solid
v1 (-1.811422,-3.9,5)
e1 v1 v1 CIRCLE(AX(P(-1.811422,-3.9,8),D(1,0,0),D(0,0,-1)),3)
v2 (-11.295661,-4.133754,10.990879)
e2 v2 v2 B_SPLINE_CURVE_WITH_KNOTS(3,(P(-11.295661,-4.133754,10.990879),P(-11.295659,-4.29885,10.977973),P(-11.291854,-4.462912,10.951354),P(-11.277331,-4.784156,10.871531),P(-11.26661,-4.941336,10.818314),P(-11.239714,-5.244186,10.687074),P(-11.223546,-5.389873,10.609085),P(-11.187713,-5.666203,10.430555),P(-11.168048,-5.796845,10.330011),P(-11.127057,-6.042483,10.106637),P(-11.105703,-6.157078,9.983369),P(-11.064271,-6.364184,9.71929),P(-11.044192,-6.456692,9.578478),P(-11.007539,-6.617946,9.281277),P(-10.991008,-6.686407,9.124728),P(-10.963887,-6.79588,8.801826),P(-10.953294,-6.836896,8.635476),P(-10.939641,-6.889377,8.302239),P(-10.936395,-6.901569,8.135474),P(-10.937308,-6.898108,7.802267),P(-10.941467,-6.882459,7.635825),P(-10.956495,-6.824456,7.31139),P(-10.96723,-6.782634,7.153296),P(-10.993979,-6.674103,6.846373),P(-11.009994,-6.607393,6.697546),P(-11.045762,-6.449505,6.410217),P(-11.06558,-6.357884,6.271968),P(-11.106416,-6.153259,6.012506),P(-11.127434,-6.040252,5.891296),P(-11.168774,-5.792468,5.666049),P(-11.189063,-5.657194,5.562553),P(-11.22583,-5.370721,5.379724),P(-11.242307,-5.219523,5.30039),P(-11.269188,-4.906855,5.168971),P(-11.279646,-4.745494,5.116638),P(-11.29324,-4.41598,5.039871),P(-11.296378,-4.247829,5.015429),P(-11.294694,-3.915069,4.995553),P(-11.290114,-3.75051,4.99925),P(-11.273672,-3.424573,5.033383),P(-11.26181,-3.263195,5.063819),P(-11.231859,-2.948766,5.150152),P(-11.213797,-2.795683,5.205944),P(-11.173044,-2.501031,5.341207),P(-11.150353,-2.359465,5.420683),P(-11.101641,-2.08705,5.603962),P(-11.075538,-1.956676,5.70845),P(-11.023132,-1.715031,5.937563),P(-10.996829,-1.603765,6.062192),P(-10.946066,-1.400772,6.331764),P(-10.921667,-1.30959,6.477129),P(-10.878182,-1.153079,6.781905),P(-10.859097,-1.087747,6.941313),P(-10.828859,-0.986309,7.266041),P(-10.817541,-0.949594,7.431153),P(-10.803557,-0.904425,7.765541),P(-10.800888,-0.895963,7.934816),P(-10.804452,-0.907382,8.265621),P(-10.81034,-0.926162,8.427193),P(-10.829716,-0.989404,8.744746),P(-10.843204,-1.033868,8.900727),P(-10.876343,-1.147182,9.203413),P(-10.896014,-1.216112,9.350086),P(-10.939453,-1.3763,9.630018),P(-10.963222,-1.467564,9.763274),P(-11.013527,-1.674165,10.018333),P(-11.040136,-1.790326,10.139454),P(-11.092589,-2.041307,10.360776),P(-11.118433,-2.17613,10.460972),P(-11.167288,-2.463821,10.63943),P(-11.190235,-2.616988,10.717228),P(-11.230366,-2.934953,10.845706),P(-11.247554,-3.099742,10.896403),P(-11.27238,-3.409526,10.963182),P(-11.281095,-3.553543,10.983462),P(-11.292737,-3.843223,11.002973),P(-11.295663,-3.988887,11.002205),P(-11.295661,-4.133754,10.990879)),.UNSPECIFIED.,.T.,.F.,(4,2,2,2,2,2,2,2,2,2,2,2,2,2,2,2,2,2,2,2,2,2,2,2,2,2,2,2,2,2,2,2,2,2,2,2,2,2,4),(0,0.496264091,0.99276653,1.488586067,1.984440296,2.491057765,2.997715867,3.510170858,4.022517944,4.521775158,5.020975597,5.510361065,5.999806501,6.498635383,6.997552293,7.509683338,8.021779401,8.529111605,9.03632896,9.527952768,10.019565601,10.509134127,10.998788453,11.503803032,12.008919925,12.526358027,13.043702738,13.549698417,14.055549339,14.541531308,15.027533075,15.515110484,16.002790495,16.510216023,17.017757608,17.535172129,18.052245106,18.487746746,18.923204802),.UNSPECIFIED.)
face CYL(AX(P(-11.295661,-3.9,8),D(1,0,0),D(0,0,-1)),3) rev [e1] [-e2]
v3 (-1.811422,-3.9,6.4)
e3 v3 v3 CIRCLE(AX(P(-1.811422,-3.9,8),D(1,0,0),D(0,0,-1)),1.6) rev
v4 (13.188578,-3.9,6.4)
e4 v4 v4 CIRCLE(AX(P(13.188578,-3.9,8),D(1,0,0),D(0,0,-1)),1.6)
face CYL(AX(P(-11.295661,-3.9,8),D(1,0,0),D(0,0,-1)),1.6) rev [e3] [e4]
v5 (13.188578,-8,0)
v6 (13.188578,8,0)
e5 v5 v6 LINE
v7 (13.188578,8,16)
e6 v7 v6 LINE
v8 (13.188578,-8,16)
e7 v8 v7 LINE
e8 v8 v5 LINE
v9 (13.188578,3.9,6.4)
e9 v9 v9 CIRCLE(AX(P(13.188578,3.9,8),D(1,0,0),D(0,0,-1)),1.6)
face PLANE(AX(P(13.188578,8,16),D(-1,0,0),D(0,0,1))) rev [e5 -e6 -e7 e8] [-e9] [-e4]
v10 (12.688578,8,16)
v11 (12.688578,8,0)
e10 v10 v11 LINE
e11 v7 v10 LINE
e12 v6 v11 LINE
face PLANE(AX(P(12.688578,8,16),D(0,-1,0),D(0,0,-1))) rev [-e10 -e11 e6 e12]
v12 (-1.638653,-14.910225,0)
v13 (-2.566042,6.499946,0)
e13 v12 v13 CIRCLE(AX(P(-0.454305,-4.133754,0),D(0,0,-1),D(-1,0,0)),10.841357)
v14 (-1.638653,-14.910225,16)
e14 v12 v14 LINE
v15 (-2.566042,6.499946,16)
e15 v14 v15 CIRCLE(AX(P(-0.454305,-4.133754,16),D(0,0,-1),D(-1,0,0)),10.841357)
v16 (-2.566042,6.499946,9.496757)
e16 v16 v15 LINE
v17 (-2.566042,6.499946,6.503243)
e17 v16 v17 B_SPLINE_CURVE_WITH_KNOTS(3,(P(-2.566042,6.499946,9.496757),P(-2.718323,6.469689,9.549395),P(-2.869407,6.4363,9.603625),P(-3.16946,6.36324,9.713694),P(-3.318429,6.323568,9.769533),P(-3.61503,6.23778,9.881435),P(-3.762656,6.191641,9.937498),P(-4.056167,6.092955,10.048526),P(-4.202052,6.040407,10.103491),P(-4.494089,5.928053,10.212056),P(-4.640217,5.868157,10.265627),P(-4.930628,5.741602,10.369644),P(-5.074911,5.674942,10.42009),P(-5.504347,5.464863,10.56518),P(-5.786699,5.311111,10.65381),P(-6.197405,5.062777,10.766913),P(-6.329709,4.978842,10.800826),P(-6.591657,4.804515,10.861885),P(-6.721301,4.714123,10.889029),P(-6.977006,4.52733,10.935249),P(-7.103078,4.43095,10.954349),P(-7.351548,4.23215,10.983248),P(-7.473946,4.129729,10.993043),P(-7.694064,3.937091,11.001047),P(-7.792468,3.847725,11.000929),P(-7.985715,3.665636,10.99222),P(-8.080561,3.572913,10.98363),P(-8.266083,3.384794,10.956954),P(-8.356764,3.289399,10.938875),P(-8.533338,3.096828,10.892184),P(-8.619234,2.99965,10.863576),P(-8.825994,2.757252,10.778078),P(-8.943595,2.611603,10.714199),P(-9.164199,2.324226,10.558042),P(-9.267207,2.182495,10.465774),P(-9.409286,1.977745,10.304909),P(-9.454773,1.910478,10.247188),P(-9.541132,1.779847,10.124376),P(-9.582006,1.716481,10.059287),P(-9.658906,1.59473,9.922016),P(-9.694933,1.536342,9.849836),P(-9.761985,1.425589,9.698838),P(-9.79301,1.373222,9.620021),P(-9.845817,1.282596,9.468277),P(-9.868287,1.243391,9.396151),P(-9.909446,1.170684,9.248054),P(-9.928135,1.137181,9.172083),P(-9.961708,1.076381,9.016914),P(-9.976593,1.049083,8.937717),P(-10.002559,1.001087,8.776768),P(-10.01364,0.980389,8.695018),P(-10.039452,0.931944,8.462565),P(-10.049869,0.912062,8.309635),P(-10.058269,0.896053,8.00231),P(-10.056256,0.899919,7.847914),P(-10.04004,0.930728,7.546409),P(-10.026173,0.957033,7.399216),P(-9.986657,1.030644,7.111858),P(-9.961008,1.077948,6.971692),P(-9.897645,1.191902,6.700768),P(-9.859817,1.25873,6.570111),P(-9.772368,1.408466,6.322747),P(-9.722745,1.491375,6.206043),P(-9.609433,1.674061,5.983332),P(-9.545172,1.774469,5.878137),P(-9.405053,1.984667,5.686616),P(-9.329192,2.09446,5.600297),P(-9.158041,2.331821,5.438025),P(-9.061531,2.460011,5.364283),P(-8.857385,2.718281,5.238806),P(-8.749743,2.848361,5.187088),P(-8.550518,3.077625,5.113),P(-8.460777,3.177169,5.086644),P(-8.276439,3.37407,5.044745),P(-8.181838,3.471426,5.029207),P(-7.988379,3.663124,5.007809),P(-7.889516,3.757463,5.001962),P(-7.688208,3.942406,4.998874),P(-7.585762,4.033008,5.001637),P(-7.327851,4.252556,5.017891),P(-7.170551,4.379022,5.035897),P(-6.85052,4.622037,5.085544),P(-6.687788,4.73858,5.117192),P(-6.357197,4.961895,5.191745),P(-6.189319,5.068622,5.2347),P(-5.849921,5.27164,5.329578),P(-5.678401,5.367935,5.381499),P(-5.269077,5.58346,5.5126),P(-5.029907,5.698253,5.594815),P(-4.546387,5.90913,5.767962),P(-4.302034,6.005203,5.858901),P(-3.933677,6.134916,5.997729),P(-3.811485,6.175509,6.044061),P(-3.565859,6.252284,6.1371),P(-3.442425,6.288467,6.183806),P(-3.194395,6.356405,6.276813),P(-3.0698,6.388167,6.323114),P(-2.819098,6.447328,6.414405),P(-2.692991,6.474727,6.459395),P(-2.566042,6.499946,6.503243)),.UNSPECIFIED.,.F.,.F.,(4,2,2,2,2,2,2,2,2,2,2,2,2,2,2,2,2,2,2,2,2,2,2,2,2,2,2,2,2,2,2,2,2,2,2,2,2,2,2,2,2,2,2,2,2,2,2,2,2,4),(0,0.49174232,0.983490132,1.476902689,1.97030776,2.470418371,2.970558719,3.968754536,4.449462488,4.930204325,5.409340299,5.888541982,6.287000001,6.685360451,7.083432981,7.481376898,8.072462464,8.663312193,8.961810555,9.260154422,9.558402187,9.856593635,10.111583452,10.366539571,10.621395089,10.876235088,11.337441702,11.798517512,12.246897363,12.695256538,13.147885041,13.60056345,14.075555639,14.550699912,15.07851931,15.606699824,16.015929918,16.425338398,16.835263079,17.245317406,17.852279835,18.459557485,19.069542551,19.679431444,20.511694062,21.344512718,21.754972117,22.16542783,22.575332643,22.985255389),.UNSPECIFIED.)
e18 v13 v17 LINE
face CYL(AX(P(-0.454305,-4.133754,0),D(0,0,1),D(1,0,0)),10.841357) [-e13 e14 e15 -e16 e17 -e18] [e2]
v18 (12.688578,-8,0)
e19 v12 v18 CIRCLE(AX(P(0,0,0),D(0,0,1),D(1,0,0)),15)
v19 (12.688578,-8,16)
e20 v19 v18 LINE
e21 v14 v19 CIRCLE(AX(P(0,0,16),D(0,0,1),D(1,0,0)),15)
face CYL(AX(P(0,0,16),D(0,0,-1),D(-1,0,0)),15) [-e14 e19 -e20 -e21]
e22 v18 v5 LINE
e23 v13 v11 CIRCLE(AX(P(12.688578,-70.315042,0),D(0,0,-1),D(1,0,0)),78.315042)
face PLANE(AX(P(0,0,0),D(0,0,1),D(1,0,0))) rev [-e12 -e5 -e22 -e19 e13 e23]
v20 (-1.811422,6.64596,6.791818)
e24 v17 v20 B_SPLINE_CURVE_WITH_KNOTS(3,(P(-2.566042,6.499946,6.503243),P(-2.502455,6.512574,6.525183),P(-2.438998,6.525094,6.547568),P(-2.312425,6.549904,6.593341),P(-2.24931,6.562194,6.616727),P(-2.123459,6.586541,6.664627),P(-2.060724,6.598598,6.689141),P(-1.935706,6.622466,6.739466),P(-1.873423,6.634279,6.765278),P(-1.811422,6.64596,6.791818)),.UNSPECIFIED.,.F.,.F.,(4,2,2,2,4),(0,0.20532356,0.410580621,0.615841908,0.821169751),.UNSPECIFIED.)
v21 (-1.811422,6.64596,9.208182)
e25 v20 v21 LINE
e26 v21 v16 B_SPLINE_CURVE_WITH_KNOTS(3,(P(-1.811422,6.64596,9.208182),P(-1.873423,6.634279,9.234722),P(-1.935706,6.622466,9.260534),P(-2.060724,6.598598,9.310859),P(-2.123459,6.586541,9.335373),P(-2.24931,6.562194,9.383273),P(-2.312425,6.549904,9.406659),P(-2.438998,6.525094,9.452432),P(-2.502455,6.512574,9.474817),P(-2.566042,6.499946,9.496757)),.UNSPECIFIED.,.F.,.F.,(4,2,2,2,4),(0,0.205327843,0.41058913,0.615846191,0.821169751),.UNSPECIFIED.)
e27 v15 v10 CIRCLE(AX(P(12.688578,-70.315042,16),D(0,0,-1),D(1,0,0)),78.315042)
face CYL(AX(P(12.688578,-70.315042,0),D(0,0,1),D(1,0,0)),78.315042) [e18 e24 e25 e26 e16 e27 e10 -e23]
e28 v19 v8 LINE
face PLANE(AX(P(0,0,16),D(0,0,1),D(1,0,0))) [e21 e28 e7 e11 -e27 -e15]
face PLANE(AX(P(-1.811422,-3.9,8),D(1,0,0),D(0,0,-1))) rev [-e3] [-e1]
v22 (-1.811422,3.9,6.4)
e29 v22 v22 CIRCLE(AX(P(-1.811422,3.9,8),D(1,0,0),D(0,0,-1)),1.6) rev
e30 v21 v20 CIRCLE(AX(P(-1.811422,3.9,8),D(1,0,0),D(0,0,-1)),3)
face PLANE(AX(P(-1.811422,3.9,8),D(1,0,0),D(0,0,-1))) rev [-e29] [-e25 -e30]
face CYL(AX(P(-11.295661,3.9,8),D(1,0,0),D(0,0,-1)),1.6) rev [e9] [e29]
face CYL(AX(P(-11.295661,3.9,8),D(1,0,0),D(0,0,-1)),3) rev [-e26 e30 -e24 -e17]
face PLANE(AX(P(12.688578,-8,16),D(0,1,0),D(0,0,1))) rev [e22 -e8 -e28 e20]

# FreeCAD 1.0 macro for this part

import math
import FreeCAD as App
import Part
import Sketcher
Q = App.Units.Quantity

doc = App.newDocument("Part")
body = doc.addObject("PartDesign::Body", "Body")

sketch1 = doc.addObject("Sketcher::SketchObject", "Sketch")
body.addObject(sketch1)
sketch1.AttachmentSupport = (doc.XY_Plane, [""])
sketch1.MapMode = "FlatFace"
sketch1.addGeometry([
    Part.LineSegment(App.Vector(13.2, 8, 0), App.Vector(12.7, 8, 0)),
    Part.ArcOfCircle(Part.Circle(App.Vector(0, 0, 0), App.Vector(0, 0, 1), 15), math.radians(32), math.radians(328)),
    Part.LineSegment(App.Vector(12.7, -8, 0), App.Vector(13.2, -8, 0)),
    Part.LineSegment(App.Vector(13.2, -8, 0), App.Vector(13.2, 8, 0)),
], False)
sketch1.addConstraint([
    Sketcher.Constraint("Coincident", 0, 2, 1, 1),
    Sketcher.Constraint("Coincident", 1, 2, 2, 1),
    Sketcher.Constraint("Coincident", 2, 2, 3, 1),
    Sketcher.Constraint("Coincident", 3, 2, 0, 1),
    Sketcher.Constraint("Horizontal", 0),
    Sketcher.Constraint("Horizontal", 2),
    Sketcher.Constraint("Vertical", 3),
    Sketcher.Constraint("Coincident", 1, 3, -1, 1),
    Sketcher.Constraint("Vertical", 0, 2, 1, 2),
    Sketcher.Constraint("Radius", 1, Q("15 mm")),
    Sketcher.Constraint("DistanceY", 3, 1, 3, 2, Q("16 mm")),
    Sketcher.Constraint("DistanceX", 0, 2, 0, 1, Q("0.5 mm")),
])
pad1 = doc.addObject("PartDesign::Pad", "Pad")
body.addObject(pad1)
pad1.Profile = sketch1
pad1.Length = 16

sketch2 = doc.addObject("Sketcher::SketchObject", "Sketch001")
body.addObject(sketch2)
sketch2.AttachmentSupport = (doc.XY_Plane, [""])
sketch2.MapMode = "FlatFace"
sketch2.AttachmentOffset = App.Placement(App.Vector(0, 0, 16), App.Rotation())
sketch2.addGeometry([
    Part.LineSegment(App.Vector(-1.638653, -32.417274, 0), App.Vector(-1.638653, -14.910225, 0)),
    Part.ArcOfCircle(Part.Circle(App.Vector(-0.454305, -4.133754, 0), App.Vector(0, 0, 1), 10.841357), math.radians(101.232182), math.radians(263.728289)),
    Part.ArcOfCircle(Part.Circle(App.Vector(12.688578, -70.315042, 0), App.Vector(0, 0, 1), 78.315042), math.radians(90), math.radians(101.232182)),
    Part.LineSegment(App.Vector(12.688578, 8, 0), App.Vector(12.688578, 31.239484, 0)),
    Part.LineSegment(App.Vector(12.688578, 31.239484, 0), App.Vector(-50.765498, 31.239484, 0)),
    Part.LineSegment(App.Vector(-50.765498, 31.239484, 0), App.Vector(-50.765498, -32.417274, 0)),
    Part.LineSegment(App.Vector(-50.765498, -32.417274, 0), App.Vector(-1.638653, -32.417274, 0)),
], False)
sketch2.addConstraint([
    Sketcher.Constraint("Coincident", 0, 2, 1, 2),
    Sketcher.Constraint("Coincident", 1, 1, 2, 2),
    Sketcher.Constraint("Coincident", 2, 1, 3, 1),
    Sketcher.Constraint("Coincident", 3, 2, 4, 1),
    Sketcher.Constraint("Coincident", 4, 2, 5, 1),
    Sketcher.Constraint("Coincident", 5, 2, 6, 1),
    Sketcher.Constraint("Coincident", 6, 2, 0, 1),
    Sketcher.Constraint("Vertical", 0),
    Sketcher.Constraint("Vertical", 3),
    Sketcher.Constraint("Horizontal", 4),
    Sketcher.Constraint("Vertical", 5),
    Sketcher.Constraint("Horizontal", 6),
    Sketcher.Constraint("DistanceY", -1, 1, 2, 1, Q("8 mm")),
    Sketcher.Constraint("Radius", 2, Q("78.315042 mm")),
    Sketcher.Constraint("Radius", 1, Q("10.841357 mm")),
    Sketcher.Constraint("DistanceY", 0, 1, 0, 2, Q("17.507049 mm")),
    Sketcher.Constraint("DistanceY", 5, 2, 5, 1, Q("63.656758 mm")),
    Sketcher.Constraint("DistanceX", 4, 2, -1, 1, Q("50.765498 mm")),
    Sketcher.Constraint("DistanceY", 1, 3, 1, 1, Q("10.6337 mm")),
    Sketcher.Constraint("DistanceX", 4, 2, 4, 1, Q("63.454076 mm")),
    Sketcher.Constraint("DistanceX", 6, 1, 6, 2, Q("49.126845 mm")),
    Sketcher.Constraint("DistanceY", 3, 1, 3, 2, Q("23.239484 mm")),
    Sketcher.Constraint("DistanceX", 1, 1, -1, 1, Q("2.566042 mm")),
])
pocket1 = doc.addObject("PartDesign::Pocket", "Pocket")
body.addObject(pocket1)
pocket1.Profile = sketch2
pocket1.Type = "ThroughAll"

sketch3 = doc.addObject("Sketcher::SketchObject", "Sketch002")
body.addObject(sketch3)
sketch3.AttachmentSupport = (doc.YZ_Plane, [""])
sketch3.MapMode = "FlatFace"
sketch3.AttachmentOffset = App.Placement(App.Vector(0, 0, 13.188578), App.Rotation())
sketch3.addGeometry([
    Part.Circle(App.Vector(3.9, 8, 0), App.Vector(0, 0, 1), 1.6),
    Part.Circle(App.Vector(-3.9, 8, 0), App.Vector(0, 0, 1), 1.6),
], False)
sketch3.addConstraint([
    Sketcher.Constraint("Equal", 0, 1),
    Sketcher.Constraint("Symmetric", 0, 3, 1, 3, -2),
    Sketcher.Constraint("Diameter", 0, Q("3.2 mm")),
    Sketcher.Constraint("DistanceY", -1, 1, 0, 3, Q("8 mm")),
    Sketcher.Constraint("DistanceX", -1, 1, 0, 3, Q("3.9 mm")),
])
pocket2 = doc.addObject("PartDesign::Pocket", "Pocket001")
body.addObject(pocket2)
pocket2.Profile = sketch3
pocket2.Type = "ThroughAll"

sketch4 = doc.addObject("Sketcher::SketchObject", "Sketch003")
body.addObject(sketch4)
sketch4.AttachmentSupport = (doc.YZ_Plane, [""])
sketch4.MapMode = "FlatFace"
sketch4.AttachmentOffset = App.Placement(App.Vector(0, 0, -1.811422), App.Rotation())
sketch4.addGeometry([
    Part.Circle(App.Vector(3.9, 8, 0), App.Vector(0, 0, 1), 3),
    Part.Circle(App.Vector(-3.9, 8, 0), App.Vector(0, 0, 1), 3),
], False)
sketch4.addConstraint([
    Sketcher.Constraint("Equal", 0, 1),
    Sketcher.Constraint("Symmetric", 0, 3, 1, 3, -2),
    Sketcher.Constraint("Diameter", 0, Q("6 mm")),
    Sketcher.Constraint("DistanceY", -1, 1, 0, 3, Q("8 mm")),
    Sketcher.Constraint("DistanceX", -1, 1, 0, 3, Q("3.9 mm")),
])
pocket3 = doc.addObject("PartDesign::Pocket", "Pocket002")
body.addObject(pocket3)
pocket3.Profile = sketch4
pocket3.Type = "ThroughAll"

doc.recompute()
